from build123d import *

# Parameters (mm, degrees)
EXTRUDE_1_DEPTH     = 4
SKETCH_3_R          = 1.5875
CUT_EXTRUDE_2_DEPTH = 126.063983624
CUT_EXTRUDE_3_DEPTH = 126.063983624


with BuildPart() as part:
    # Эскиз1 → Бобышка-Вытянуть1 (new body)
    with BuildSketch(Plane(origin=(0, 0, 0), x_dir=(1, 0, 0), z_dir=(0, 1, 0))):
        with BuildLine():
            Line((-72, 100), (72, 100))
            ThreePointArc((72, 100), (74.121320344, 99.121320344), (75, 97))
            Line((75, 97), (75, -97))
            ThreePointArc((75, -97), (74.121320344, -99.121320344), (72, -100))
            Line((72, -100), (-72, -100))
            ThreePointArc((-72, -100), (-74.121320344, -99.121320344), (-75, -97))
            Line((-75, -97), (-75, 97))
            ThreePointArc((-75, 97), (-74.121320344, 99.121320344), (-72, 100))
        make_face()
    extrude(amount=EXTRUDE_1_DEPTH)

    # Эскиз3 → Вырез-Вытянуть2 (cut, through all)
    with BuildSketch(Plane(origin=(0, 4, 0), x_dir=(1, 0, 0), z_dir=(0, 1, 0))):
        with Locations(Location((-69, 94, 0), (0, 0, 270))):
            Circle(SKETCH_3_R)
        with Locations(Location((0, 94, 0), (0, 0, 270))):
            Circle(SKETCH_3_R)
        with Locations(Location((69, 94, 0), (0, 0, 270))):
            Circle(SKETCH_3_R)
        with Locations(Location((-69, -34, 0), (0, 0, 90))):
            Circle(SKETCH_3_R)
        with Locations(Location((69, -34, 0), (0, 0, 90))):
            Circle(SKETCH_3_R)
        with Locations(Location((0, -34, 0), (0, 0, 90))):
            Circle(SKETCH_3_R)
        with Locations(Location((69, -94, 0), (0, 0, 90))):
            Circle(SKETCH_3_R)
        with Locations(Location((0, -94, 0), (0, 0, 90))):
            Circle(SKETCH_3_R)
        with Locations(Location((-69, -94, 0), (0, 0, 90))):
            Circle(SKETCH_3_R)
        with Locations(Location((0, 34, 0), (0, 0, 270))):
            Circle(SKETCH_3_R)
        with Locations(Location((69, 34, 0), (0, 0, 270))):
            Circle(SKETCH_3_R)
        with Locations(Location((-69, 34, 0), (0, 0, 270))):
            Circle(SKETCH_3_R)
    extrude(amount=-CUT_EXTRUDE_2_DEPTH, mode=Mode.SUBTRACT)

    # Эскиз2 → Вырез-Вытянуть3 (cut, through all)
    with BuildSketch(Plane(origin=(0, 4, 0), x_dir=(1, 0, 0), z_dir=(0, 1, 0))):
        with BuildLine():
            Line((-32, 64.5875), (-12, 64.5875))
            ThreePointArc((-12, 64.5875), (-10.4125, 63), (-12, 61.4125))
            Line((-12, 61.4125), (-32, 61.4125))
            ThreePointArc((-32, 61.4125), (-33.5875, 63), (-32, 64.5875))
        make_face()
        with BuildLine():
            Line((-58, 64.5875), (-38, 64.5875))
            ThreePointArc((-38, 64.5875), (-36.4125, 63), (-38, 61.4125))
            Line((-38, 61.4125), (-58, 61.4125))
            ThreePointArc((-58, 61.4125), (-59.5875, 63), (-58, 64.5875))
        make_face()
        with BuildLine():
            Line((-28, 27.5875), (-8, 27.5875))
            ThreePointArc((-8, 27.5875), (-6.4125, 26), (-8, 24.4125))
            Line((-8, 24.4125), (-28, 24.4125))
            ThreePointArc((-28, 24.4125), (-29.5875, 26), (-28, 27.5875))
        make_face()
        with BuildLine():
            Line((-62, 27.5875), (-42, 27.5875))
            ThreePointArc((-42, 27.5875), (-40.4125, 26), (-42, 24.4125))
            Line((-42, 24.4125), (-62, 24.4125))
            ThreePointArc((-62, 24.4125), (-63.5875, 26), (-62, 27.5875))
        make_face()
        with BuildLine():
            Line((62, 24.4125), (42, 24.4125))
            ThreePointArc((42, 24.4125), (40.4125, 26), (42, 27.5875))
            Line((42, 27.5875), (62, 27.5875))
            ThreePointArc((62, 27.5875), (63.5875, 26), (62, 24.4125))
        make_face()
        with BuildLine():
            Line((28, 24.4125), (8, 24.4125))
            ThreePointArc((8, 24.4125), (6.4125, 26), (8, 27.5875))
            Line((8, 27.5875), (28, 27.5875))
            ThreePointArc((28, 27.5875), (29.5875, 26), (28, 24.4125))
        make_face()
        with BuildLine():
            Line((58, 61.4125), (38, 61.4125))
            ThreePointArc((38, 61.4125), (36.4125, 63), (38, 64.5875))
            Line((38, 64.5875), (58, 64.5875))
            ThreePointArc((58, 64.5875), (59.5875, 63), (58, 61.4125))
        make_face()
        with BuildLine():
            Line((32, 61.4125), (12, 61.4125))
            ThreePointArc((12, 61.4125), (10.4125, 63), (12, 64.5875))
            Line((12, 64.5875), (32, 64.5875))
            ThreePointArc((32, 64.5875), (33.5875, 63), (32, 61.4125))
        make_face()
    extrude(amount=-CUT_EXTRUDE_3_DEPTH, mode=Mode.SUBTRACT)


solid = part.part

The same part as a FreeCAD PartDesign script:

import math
import FreeCAD as App
import Part
import Sketcher

V = App.Vector
Q = App.Units.Quantity

doc = App.newDocument("Part")
body = doc.addObject("PartDesign::Body", "Body")

# Sketch on XZ plane
sketch1 = body.newObject("Sketcher::SketchObject", "Sketch")
sketch1.AttachmentSupport = (doc.getObject("XZ_Plane"), [""])
sketch1.MapMode = "FlatFace"
sketch1.addGeometry([
    Part.LineSegment(V(72, -100, 0), V(-72, -100, 0)),  # 0
    Part.ArcOfCircle(Part.Circle(V(-72, -97, 0), V(0, 0, 1), 3), math.radians(180), math.radians(270)),  # 1
    Part.LineSegment(V(-75, -97, 0), V(-75, 97, 0)),  # 2
    Part.ArcOfCircle(Part.Circle(V(-72, 97, 0), V(0, 0, 1), 3), math.radians(90), math.radians(180)),  # 3
    Part.LineSegment(V(-72, 100, 0), V(72, 100, 0)),  # 4
    Part.ArcOfCircle(Part.Circle(V(72, 97, 0), V(0, 0, 1), 3), math.radians(0), math.radians(90)),  # 5
    Part.LineSegment(V(75, 97, 0), V(75, -97, 0)),  # 6
    Part.ArcOfCircle(Part.Circle(V(72, -97, 0), V(0, 0, 1), 3), math.radians(-90), math.radians(0)),  # 7
], False)
sketch1.addConstraint([
    Sketcher.Constraint("Tangent", 0, 2, 1, 2),
    Sketcher.Constraint("Tangent", 1, 1, 2, 1),
    Sketcher.Constraint("Tangent", 2, 2, 3, 2),
    Sketcher.Constraint("Tangent", 3, 1, 4, 1),
    Sketcher.Constraint("Tangent", 4, 2, 5, 2),
    Sketcher.Constraint("Tangent", 5, 1, 6, 1),
    Sketcher.Constraint("Tangent", 6, 2, 7, 2),
    Sketcher.Constraint("Tangent", 7, 1, 0, 1),
    Sketcher.Constraint("Horizontal", 0),
    Sketcher.Constraint("Vertical", 2),
    Sketcher.Constraint("Horizontal", 4),
    Sketcher.Constraint("Vertical", 6),
    Sketcher.Constraint("Equal", 1, 3),
    Sketcher.Constraint("Equal", 3, 5),
    Sketcher.Constraint("Equal", 5, 7),
    Sketcher.Constraint("Symmetric", 1, 3, 5, 3, -1, 1),
    Sketcher.Constraint("Radius", 1, Q("3 mm")),
    Sketcher.Constraint("DistanceX", 0, 2, 0, 1, Q("144 mm")),
    Sketcher.Constraint("DistanceY", 2, 1, 2, 2, Q("194 mm")),
])
pad1 = body.newObject("PartDesign::Pad", "Pad")
pad1.Profile = sketch1
pad1.Length = 4
pad1.Reversed = True

# Sketch on XZ plane
sketch2 = body.newObject("Sketcher::SketchObject", "Sketch001")
sketch2.AttachmentSupport = (doc.getObject("XZ_Plane"), [""])
sketch2.MapMode = "FlatFace"
sketch2.AttachmentOffset = App.Placement(V(0, 0, -4), App.Rotation())
sketch2.addGeometry([
    Part.Circle(V(-69, -94, 0), V(0, 0, 1), 1.6),  # 0
    Part.Circle(V(0, -94, 0), V(0, 0, 1), 1.6),  # 1
    Part.Circle(V(69, -94, 0), V(0, 0, 1), 1.6),  # 2
    Part.Circle(V(-69, 34, 0), V(0, 0, 1), 1.6),  # 3
    Part.Circle(V(69, 34, 0), V(0, 0, 1), 1.6),  # 4
    Part.Circle(V(0, 34, 0), V(0, 0, 1), 1.6),  # 5
    Part.Circle(V(69, 94, 0), V(0, 0, 1), 1.6),  # 6
    Part.Circle(V(0, 94, 0), V(0, 0, 1), 1.6),  # 7
    Part.Circle(V(-69, 94, 0), V(0, 0, 1), 1.6),  # 8
    Part.Circle(V(0, -34, 0), V(0, 0, 1), 1.6),  # 9
    Part.Circle(V(69, -34, 0), V(0, 0, 1), 1.6),  # 10
    Part.Circle(V(-69, -34, 0), V(0, 0, 1), 1.6),  # 11
], False)
sketch2.addConstraint([
    Sketcher.Constraint("Equal", 0, 1),
    Sketcher.Constraint("Equal", 1, 2),
    Sketcher.Constraint("Equal", 2, 3),
    Sketcher.Constraint("Equal", 3, 4),
    Sketcher.Constraint("Equal", 4, 5),
    Sketcher.Constraint("Equal", 5, 6),
    Sketcher.Constraint("Equal", 6, 7),
    Sketcher.Constraint("Equal", 7, 8),
    Sketcher.Constraint("Equal", 8, 9),
    Sketcher.Constraint("Equal", 9, 10),
    Sketcher.Constraint("Equal", 10, 11),
    Sketcher.Constraint("Symmetric", 0, 3, 6, 3, -1, 1),
    Sketcher.Constraint("Symmetric", 1, 3, 7, 3, -1, 1),
    Sketcher.Constraint("Symmetric", 2, 3, 8, 3, -1, 1),
    Sketcher.Constraint("Symmetric", 5, 3, 9, 3, -1, 1),
    Sketcher.Constraint("Symmetric", 3, 3, 10, 3, -1, 1),
    Sketcher.Constraint("Symmetric", 4, 3, 11, 3, -1, 1),
    Sketcher.Constraint("Symmetric", 0, 3, 2, 3, -2),
    Sketcher.Constraint("Symmetric", 3, 3, 4, 3, -2),
    Sketcher.Constraint("PointOnObject", 1, 3, -2),
    Sketcher.Constraint("PointOnObject", 5, 3, -2),
    Sketcher.Constraint("Horizontal", 0, 3, 1, 3),
    Sketcher.Constraint("Horizontal", 4, 3, 5, 3),
    Sketcher.Constraint("Vertical", 0, 3, 3, 3),
    Sketcher.Constraint("Diameter", 0, Q("3.175 mm")),
    Sketcher.Constraint("DistanceX", 0, 3, -1, 1, Q("69 mm")),
    Sketcher.Constraint("DistanceY", 0, 3, -1, 1, Q("94 mm")),
    Sketcher.Constraint("DistanceY", -1, 1, 3, 3, Q("34 mm")),
])
pocket1 = body.newObject("PartDesign::Pocket", "Pocket")
pocket1.Profile = sketch2
pocket1.Type = "ThroughAll"
pocket1.Reversed = True

# Sketch on XZ plane
sketch3 = body.newObject("Sketcher::SketchObject", "Sketch002")
sketch3.AttachmentSupport = (doc.getObject("XZ_Plane"), [""])
sketch3.MapMode = "FlatFace"
sketch3.AttachmentOffset = App.Placement(V(0, 0, -4), App.Rotation())
sketch3.addGeometry([
    Part.LineSegment(V(-12, -64.6, 0), V(-32, -64.6, 0)),  # 0
    Part.ArcOfCircle(Part.Circle(V(-32, -63, 0), V(0, 0, 1), 1.6), math.radians(90), math.radians(270)),  # 1
    Part.LineSegment(V(-32, -61.4, 0), V(-12, -61.4, 0)),  # 2
    Part.ArcOfCircle(Part.Circle(V(-12, -63, 0), V(0, 0, 1), 1.6), math.radians(-90), math.radians(90)),  # 3
    Part.LineSegment(V(-38, -64.6, 0), V(-58, -64.6, 0)),  # 4
    Part.ArcOfCircle(Part.Circle(V(-58, -63, 0), V(0, 0, 1), 1.6), math.radians(90), math.radians(270)),  # 5
    Part.LineSegment(V(-58, -61.4, 0), V(-38, -61.4, 0)),  # 6
    Part.ArcOfCircle(Part.Circle(V(-38, -63, 0), V(0, 0, 1), 1.6), math.radians(-90), math.radians(90)),  # 7
    Part.LineSegment(V(-8, -27.6, 0), V(-28, -27.6, 0)),  # 8
    Part.ArcOfCircle(Part.Circle(V(-28, -26, 0), V(0, 0, 1), 1.6), math.radians(90), math.radians(270)),  # 9
    Part.LineSegment(V(-28, -24.4, 0), V(-8, -24.4, 0)),  # 10
    Part.ArcOfCircle(Part.Circle(V(-8, -26, 0), V(0, 0, 1), 1.6), math.radians(-90), math.radians(90)),  # 11
    Part.LineSegment(V(-42, -27.6, 0), V(-62, -27.6, 0)),  # 12
    Part.ArcOfCircle(Part.Circle(V(-62, -26, 0), V(0, 0, 1), 1.6), math.radians(90), math.radians(270)),  # 13
    Part.LineSegment(V(-62, -24.4, 0), V(-42, -24.4, 0)),  # 14
    Part.ArcOfCircle(Part.Circle(V(-42, -26, 0), V(0, 0, 1), 1.6), math.radians(-90), math.radians(90)),  # 15
    Part.LineSegment(V(42, -24.4, 0), V(62, -24.4, 0)),  # 16
    Part.ArcOfCircle(Part.Circle(V(62, -26, 0), V(0, 0, 1), 1.6), math.radians(-90), math.radians(90)),  # 17
    Part.LineSegment(V(62, -27.6, 0), V(42, -27.6, 0)),  # 18
    Part.ArcOfCircle(Part.Circle(V(42, -26, 0), V(0, 0, 1), 1.6), math.radians(90), math.radians(270)),  # 19
    Part.LineSegment(V(8, -24.4, 0), V(28, -24.4, 0)),  # 20
    Part.ArcOfCircle(Part.Circle(V(28, -26, 0), V(0, 0, 1), 1.6), math.radians(-90), math.radians(90)),  # 21
    Part.LineSegment(V(28, -27.6, 0), V(8, -27.6, 0)),  # 22
    Part.ArcOfCircle(Part.Circle(V(8, -26, 0), V(0, 0, 1), 1.6), math.radians(90), math.radians(270)),  # 23
    Part.LineSegment(V(38, -61.4, 0), V(58, -61.4, 0)),  # 24
    Part.ArcOfCircle(Part.Circle(V(58, -63, 0), V(0, 0, 1), 1.6), math.radians(-90), math.radians(90)),  # 25
    Part.LineSegment(V(58, -64.6, 0), V(38, -64.6, 0)),  # 26
    Part.ArcOfCircle(Part.Circle(V(38, -63, 0), V(0, 0, 1), 1.6), math.radians(90), math.radians(270)),  # 27
    Part.LineSegment(V(12, -61.4, 0), V(32, -61.4, 0)),  # 28
    Part.ArcOfCircle(Part.Circle(V(32, -63, 0), V(0, 0, 1), 1.6), math.radians(-90), math.radians(90)),  # 29
    Part.LineSegment(V(32, -64.6, 0), V(12, -64.6, 0)),  # 30
    Part.ArcOfCircle(Part.Circle(V(12, -63, 0), V(0, 0, 1), 1.6), math.radians(90), math.radians(270)),  # 31
], False)
sketch3.addConstraint([
    Sketcher.Constraint("Tangent", 0, 2, 1, 2),
    Sketcher.Constraint("Tangent", 1, 1, 2, 1),
    Sketcher.Constraint("Tangent", 2, 2, 3, 2),
    Sketcher.Constraint("Tangent", 3, 1, 0, 1),
    Sketcher.Constraint("Tangent", 4, 2, 5, 2),
    Sketcher.Constraint("Tangent", 5, 1, 6, 1),
    Sketcher.Constraint("Tangent", 6, 2, 7, 2),
    Sketcher.Constraint("Tangent", 7, 1, 4, 1),
    Sketcher.Constraint("Tangent", 8, 2, 9, 2),
    Sketcher.Constraint("Tangent", 9, 1, 10, 1),
    Sketcher.Constraint("Tangent", 10, 2, 11, 2),
    Sketcher.Constraint("Tangent", 11, 1, 8, 1),
    Sketcher.Constraint("Tangent", 12, 2, 13, 2),
    Sketcher.Constraint("Tangent", 13, 1, 14, 1),
    Sketcher.Constraint("Tangent", 14, 2, 15, 2),
    Sketcher.Constraint("Tangent", 15, 1, 12, 1),
    Sketcher.Constraint("Tangent", 16, 2, 17, 2),
    Sketcher.Constraint("Tangent", 17, 1, 18, 1),
    Sketcher.Constraint("Tangent", 18, 2, 19, 2),
    Sketcher.Constraint("Tangent", 19, 1, 16, 1),
    Sketcher.Constraint("Tangent", 20, 2, 21, 2),
    Sketcher.Constraint("Tangent", 21, 1, 22, 1),
    Sketcher.Constraint("Tangent", 22, 2, 23, 2),
    Sketcher.Constraint("Tangent", 23, 1, 20, 1),
    Sketcher.Constraint("Tangent", 24, 2, 25, 2),
    Sketcher.Constraint("Tangent", 25, 1, 26, 1),
    Sketcher.Constraint("Tangent", 26, 2, 27, 2),
    Sketcher.Constraint("Tangent", 27, 1, 24, 1),
    Sketcher.Constraint("Tangent", 28, 2, 29, 2),
    Sketcher.Constraint("Tangent", 29, 1, 30, 1),
    Sketcher.Constraint("Tangent", 30, 2, 31, 2),
    Sketcher.Constraint("Tangent", 31, 1, 28, 1),
    Sketcher.Constraint("Horizontal", 0),
    Sketcher.Constraint("Horizontal", 2),
    Sketcher.Constraint("Horizontal", 4),
    Sketcher.Constraint("Horizontal", 6),
    Sketcher.Constraint("Horizontal", 8),
    Sketcher.Constraint("Horizontal", 10),
    Sketcher.Constraint("Horizontal", 12),
    Sketcher.Constraint("Horizontal", 14),
    Sketcher.Constraint("Horizontal", 16),
    Sketcher.Constraint("Horizontal", 18),
    Sketcher.Constraint("Horizontal", 20),
    Sketcher.Constraint("Horizontal", 22),
    Sketcher.Constraint("Horizontal", 24),
    Sketcher.Constraint("Horizontal", 26),
    Sketcher.Constraint("Horizontal", 28),
    Sketcher.Constraint("Horizontal", 30),
    Sketcher.Constraint("Equal", 3, 5),
    Sketcher.Constraint("Equal", 7, 9),
    Sketcher.Constraint("Equal", 11, 13),
    Sketcher.Constraint("Equal", 15, 17),
    Sketcher.Constraint("Equal", 19, 21),
    Sketcher.Constraint("Equal", 23, 25),
    Sketcher.Constraint("Equal", 27, 29),
    Sketcher.Constraint("Symmetric", 13, 3, 17, 3, -2),
    Sketcher.Constraint("Symmetric", 9, 3, 21, 3, -2),
    Sketcher.Constraint("Symmetric", 5, 3, 25, 3, -2),
    Sketcher.Constraint("Symmetric", 1, 3, 29, 3, -2),
    Sketcher.Constraint("Horizontal", 3, 3, 5, 3),
    Sketcher.Constraint("Horizontal", 11, 3, 13, 3),
    Sketcher.Constraint("Equal", 2, 4),
    Sketcher.Constraint("Equal", 6, 8),
    Sketcher.Constraint("Equal", 10, 12),
    Sketcher.Constraint("Equal", 14, 16),
    Sketcher.Constraint("Equal", 18, 20),
    Sketcher.Constraint("Equal", 22, 24),
    Sketcher.Constraint("Equal", 26, 28),
    Sketcher.Constraint("DistanceX", 0, 2, 0, 1, Q("20 mm")),
    Sketcher.Constraint("DistanceX", 1, 3, -1, 1, Q("32 mm")),
    Sketcher.Constraint("DistanceY", 1, 3, -1, 1, Q("63 mm")),
    Sketcher.Constraint("DistanceX", 5, 3, -1, 1, Q("58 mm")),
    Sketcher.Constraint("DistanceX", 9, 3, -1, 1, Q("28 mm")),
    Sketcher.Constraint("DistanceY", 9, 3, -1, 1, Q("26 mm")),
    Sketcher.Constraint("DistanceX", 13, 3, -1, 1, Q("62 mm")),
    Sketcher.Constraint("Radius", 1, Q("1.5875 mm")),
])
pocket2 = body.newObject("PartDesign::Pocket", "Pocket001")
pocket2.Profile = sketch3
pocket2.Type = "ThroughAll"
pocket2.Reversed = True

doc.recompute()
